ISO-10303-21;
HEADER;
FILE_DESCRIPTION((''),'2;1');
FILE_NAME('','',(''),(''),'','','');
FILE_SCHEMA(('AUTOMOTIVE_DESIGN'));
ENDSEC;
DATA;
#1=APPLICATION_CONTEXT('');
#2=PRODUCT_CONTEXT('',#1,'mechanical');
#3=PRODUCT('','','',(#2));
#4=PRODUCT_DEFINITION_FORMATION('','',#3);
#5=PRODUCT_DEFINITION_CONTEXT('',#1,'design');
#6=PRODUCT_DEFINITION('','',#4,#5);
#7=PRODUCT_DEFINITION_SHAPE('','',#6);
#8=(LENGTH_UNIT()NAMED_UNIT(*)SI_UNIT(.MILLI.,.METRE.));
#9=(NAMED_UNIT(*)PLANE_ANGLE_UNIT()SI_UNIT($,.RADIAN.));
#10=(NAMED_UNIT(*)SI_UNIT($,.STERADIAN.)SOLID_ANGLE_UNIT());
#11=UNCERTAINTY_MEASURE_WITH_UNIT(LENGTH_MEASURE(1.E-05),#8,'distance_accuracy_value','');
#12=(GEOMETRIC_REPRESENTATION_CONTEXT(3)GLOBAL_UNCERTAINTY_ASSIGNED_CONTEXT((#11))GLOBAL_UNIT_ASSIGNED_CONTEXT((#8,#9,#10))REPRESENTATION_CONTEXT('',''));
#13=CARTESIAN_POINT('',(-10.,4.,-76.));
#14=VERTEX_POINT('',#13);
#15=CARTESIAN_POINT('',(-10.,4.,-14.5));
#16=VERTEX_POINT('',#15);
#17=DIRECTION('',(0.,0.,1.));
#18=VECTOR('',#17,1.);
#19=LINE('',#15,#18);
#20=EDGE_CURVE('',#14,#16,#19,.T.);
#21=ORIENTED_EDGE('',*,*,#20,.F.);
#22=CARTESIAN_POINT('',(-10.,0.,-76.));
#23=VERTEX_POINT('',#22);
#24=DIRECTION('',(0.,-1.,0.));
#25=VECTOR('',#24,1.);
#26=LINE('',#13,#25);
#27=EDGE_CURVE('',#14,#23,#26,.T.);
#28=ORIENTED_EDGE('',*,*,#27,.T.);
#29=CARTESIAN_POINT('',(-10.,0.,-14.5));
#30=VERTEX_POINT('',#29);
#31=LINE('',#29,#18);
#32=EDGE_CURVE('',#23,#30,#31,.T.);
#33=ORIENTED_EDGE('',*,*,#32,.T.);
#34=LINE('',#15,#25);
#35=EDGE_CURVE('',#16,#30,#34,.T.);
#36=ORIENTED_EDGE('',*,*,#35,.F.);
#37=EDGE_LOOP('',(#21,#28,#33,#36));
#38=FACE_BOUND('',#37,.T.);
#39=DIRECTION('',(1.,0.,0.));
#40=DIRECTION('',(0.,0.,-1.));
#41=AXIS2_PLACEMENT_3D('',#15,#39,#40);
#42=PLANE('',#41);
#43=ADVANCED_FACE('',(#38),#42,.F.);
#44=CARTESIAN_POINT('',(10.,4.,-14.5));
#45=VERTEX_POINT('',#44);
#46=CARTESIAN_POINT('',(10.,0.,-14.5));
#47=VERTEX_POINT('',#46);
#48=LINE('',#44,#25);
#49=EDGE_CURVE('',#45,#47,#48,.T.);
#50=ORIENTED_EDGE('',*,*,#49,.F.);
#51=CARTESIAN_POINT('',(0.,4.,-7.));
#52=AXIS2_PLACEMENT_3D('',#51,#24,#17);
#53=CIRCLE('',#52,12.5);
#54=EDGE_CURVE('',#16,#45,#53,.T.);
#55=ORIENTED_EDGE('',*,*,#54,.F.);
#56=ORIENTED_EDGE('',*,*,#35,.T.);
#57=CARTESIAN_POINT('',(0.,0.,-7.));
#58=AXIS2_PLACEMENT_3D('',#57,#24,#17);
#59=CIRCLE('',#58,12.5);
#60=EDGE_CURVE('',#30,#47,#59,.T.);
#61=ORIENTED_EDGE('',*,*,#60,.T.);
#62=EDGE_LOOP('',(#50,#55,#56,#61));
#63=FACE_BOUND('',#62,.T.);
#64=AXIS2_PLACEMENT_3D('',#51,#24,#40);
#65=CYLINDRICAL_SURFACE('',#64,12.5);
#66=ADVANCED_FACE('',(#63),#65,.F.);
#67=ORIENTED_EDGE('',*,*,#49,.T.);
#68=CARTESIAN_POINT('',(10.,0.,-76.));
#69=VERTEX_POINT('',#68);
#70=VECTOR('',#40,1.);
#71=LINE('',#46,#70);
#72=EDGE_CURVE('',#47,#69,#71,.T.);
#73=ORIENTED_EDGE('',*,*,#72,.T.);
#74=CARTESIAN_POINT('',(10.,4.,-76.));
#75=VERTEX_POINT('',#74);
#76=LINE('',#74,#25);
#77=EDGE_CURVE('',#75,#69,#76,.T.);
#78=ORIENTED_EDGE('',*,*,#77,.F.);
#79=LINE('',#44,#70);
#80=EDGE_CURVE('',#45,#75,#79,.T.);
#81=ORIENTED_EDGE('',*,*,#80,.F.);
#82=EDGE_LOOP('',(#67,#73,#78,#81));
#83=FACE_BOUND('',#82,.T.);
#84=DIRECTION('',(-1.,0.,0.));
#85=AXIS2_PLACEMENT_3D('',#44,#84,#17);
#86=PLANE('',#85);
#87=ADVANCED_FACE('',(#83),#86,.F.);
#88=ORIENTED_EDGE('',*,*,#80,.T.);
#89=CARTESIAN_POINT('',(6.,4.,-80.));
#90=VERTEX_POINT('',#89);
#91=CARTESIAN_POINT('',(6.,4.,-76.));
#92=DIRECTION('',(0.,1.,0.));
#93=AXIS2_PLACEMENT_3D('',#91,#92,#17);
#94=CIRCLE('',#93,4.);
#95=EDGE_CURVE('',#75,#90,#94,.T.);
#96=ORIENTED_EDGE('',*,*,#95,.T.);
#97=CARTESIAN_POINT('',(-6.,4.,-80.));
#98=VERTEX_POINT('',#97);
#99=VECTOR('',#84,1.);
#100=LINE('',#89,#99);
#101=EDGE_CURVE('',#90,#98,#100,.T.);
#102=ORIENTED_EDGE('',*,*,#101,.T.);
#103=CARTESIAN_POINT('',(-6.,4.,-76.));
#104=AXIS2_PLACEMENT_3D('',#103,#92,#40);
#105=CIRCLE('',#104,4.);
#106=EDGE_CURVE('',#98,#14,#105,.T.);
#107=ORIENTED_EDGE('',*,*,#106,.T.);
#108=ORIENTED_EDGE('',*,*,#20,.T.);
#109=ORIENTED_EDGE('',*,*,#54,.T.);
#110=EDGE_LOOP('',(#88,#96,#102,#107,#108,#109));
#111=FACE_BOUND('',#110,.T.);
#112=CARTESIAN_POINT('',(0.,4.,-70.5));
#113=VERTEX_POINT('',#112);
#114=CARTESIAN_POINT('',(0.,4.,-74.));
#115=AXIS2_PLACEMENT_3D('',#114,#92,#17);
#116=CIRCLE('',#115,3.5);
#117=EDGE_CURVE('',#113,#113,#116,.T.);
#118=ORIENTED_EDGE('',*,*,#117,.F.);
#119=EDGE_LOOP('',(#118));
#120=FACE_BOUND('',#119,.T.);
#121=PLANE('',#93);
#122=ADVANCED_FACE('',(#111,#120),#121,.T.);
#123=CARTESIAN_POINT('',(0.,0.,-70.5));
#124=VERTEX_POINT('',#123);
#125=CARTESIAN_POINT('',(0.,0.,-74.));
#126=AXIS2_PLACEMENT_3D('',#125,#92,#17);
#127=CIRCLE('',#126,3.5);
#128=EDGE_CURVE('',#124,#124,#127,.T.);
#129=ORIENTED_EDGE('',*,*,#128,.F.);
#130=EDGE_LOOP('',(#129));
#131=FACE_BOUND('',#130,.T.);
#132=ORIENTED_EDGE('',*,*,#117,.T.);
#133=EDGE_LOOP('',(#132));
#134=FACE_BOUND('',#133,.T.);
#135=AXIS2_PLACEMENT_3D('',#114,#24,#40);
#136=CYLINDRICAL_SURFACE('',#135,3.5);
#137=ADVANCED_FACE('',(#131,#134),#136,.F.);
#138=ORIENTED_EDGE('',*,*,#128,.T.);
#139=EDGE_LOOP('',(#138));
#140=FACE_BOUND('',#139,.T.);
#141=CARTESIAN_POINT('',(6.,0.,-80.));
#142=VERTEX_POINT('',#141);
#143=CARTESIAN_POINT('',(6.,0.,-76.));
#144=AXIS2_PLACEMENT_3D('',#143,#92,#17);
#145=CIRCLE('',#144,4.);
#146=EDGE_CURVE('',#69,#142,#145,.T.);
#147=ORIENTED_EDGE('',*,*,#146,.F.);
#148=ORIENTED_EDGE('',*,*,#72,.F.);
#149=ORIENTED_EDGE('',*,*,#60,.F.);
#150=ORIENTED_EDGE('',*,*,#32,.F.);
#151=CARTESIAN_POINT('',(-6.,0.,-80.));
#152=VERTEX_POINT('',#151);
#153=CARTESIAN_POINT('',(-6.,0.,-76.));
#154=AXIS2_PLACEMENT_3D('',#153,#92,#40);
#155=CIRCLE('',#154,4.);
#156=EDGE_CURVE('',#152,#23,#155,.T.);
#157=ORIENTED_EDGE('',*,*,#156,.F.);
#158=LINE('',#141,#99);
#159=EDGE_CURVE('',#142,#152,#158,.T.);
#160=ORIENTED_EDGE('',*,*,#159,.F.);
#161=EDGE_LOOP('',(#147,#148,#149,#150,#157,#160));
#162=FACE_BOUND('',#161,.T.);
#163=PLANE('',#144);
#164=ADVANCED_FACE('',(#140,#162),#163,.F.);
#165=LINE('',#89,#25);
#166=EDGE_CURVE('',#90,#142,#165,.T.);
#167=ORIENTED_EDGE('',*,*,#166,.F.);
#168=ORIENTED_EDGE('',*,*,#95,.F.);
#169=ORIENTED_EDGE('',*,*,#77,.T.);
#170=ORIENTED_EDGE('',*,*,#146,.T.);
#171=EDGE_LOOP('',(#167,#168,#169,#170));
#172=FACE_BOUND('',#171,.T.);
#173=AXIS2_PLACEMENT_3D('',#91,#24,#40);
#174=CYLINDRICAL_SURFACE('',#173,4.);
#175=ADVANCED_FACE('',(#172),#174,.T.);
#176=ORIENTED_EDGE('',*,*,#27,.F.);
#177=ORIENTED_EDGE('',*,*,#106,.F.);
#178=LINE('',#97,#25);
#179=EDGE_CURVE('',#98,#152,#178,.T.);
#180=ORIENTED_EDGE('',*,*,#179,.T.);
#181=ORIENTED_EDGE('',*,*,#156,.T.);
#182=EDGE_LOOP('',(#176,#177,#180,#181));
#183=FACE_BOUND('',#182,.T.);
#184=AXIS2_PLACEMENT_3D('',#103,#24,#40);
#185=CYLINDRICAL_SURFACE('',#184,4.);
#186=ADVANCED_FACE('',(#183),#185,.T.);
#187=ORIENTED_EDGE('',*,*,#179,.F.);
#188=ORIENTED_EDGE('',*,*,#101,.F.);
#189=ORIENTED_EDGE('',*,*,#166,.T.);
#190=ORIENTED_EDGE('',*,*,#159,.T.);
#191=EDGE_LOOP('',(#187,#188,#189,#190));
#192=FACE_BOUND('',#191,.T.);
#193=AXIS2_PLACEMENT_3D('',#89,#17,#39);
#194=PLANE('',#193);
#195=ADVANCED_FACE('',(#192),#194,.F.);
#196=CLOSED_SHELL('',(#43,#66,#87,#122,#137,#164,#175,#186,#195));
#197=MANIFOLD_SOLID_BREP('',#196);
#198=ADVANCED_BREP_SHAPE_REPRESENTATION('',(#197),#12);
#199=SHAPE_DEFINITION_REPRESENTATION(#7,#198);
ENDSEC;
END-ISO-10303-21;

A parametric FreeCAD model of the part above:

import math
import FreeCAD as App
import Part
import Sketcher
from FreeCAD import Vector

doc = App.newDocument("Part")
body = doc.addObject("PartDesign::Body", "Body")

sketch1 = doc.addObject("Sketcher::SketchObject", "Sketch")
body.addObject(sketch1)
sketch1.AttachmentSupport = (doc.XZ_Plane, [""])
sketch1.MapMode = "FlatFace"
sketch1.addGeometry(Part.LineSegment(Vector(-10, -76, 0), Vector(-10, -14.5, 0)), False)
sketch1.addGeometry(Part.ArcOfCircle(Part.Circle(Vector(0, -7, 0), Vector(0, 0, 1), 12.5), math.radians(-143), math.radians(-37)), False)
sketch1.addGeometry(Part.LineSegment(Vector(10, -14.5, 0), Vector(10, -76, 0)), False)
sketch1.addGeometry(Part.ArcOfCircle(Part.Circle(Vector(6, -76, 0), Vector(0, 0, 1), 4), math.radians(-90), math.radians(0)), False)
sketch1.addGeometry(Part.LineSegment(Vector(6, -80, 0), Vector(-6, -80, 0)), False)
sketch1.addGeometry(Part.ArcOfCircle(Part.Circle(Vector(-6, -76, 0), Vector(0, 0, 1), 4), math.radians(180), math.radians(270)), False)
sketch1.addGeometry(Part.Circle(Vector(0, -74, 0), Vector(0, 0, 1), 3.5), False)
sketch1.addConstraint(Sketcher.Constraint("Coincident", 0, 2, 1, 1))
sketch1.addConstraint(Sketcher.Constraint("Coincident", 1, 2, 2, 1))
sketch1.addConstraint(Sketcher.Constraint("Tangent", 2, 2, 3, 2))
sketch1.addConstraint(Sketcher.Constraint("Tangent", 3, 1, 4, 1))
sketch1.addConstraint(Sketcher.Constraint("Tangent", 4, 2, 5, 2))
sketch1.addConstraint(Sketcher.Constraint("Tangent", 5, 1, 0, 1))
sketch1.addConstraint(Sketcher.Constraint("Vertical", 0))
sketch1.addConstraint(Sketcher.Constraint("Vertical", 2))
sketch1.addConstraint(Sketcher.Constraint("Horizontal", 4))
sketch1.addConstraint(Sketcher.Constraint("Equal", 3, 5))
sketch1.addConstraint(Sketcher.Constraint("Symmetric", 0, 2, 1, 2, -2))
sketch1.addConstraint(Sketcher.Constraint("PointOnObject", 6, 3, -2))
sketch1.addConstraint(Sketcher.Constraint("Diameter", 6, 7.0))
sketch1.addConstraint(Sketcher.Constraint("Radius", 3, 4.0))
sketch1.addConstraint(Sketcher.Constraint("Radius", 1, 12.5))
sketch1.addConstraint(Sketcher.Constraint("DistanceX", 4, 2, 4, 1, 12.0))
sketch1.addConstraint(Sketcher.Constraint("DistanceY", 0, 1, 0, 2, 61.5))
sketch1.addConstraint(Sketcher.Constraint("DistanceY", 1, 3, -1, 1, 7.0))
sketch1.addConstraint(Sketcher.Constraint("DistanceY", 6, 3, -1, 1, 74.0))
pad1 = doc.addObject("PartDesign::Pad", "Pad")
body.addObject(pad1)
pad1.Profile = sketch1
pad1.Length = 4
pad1.Reversed = True

doc.recompute()
